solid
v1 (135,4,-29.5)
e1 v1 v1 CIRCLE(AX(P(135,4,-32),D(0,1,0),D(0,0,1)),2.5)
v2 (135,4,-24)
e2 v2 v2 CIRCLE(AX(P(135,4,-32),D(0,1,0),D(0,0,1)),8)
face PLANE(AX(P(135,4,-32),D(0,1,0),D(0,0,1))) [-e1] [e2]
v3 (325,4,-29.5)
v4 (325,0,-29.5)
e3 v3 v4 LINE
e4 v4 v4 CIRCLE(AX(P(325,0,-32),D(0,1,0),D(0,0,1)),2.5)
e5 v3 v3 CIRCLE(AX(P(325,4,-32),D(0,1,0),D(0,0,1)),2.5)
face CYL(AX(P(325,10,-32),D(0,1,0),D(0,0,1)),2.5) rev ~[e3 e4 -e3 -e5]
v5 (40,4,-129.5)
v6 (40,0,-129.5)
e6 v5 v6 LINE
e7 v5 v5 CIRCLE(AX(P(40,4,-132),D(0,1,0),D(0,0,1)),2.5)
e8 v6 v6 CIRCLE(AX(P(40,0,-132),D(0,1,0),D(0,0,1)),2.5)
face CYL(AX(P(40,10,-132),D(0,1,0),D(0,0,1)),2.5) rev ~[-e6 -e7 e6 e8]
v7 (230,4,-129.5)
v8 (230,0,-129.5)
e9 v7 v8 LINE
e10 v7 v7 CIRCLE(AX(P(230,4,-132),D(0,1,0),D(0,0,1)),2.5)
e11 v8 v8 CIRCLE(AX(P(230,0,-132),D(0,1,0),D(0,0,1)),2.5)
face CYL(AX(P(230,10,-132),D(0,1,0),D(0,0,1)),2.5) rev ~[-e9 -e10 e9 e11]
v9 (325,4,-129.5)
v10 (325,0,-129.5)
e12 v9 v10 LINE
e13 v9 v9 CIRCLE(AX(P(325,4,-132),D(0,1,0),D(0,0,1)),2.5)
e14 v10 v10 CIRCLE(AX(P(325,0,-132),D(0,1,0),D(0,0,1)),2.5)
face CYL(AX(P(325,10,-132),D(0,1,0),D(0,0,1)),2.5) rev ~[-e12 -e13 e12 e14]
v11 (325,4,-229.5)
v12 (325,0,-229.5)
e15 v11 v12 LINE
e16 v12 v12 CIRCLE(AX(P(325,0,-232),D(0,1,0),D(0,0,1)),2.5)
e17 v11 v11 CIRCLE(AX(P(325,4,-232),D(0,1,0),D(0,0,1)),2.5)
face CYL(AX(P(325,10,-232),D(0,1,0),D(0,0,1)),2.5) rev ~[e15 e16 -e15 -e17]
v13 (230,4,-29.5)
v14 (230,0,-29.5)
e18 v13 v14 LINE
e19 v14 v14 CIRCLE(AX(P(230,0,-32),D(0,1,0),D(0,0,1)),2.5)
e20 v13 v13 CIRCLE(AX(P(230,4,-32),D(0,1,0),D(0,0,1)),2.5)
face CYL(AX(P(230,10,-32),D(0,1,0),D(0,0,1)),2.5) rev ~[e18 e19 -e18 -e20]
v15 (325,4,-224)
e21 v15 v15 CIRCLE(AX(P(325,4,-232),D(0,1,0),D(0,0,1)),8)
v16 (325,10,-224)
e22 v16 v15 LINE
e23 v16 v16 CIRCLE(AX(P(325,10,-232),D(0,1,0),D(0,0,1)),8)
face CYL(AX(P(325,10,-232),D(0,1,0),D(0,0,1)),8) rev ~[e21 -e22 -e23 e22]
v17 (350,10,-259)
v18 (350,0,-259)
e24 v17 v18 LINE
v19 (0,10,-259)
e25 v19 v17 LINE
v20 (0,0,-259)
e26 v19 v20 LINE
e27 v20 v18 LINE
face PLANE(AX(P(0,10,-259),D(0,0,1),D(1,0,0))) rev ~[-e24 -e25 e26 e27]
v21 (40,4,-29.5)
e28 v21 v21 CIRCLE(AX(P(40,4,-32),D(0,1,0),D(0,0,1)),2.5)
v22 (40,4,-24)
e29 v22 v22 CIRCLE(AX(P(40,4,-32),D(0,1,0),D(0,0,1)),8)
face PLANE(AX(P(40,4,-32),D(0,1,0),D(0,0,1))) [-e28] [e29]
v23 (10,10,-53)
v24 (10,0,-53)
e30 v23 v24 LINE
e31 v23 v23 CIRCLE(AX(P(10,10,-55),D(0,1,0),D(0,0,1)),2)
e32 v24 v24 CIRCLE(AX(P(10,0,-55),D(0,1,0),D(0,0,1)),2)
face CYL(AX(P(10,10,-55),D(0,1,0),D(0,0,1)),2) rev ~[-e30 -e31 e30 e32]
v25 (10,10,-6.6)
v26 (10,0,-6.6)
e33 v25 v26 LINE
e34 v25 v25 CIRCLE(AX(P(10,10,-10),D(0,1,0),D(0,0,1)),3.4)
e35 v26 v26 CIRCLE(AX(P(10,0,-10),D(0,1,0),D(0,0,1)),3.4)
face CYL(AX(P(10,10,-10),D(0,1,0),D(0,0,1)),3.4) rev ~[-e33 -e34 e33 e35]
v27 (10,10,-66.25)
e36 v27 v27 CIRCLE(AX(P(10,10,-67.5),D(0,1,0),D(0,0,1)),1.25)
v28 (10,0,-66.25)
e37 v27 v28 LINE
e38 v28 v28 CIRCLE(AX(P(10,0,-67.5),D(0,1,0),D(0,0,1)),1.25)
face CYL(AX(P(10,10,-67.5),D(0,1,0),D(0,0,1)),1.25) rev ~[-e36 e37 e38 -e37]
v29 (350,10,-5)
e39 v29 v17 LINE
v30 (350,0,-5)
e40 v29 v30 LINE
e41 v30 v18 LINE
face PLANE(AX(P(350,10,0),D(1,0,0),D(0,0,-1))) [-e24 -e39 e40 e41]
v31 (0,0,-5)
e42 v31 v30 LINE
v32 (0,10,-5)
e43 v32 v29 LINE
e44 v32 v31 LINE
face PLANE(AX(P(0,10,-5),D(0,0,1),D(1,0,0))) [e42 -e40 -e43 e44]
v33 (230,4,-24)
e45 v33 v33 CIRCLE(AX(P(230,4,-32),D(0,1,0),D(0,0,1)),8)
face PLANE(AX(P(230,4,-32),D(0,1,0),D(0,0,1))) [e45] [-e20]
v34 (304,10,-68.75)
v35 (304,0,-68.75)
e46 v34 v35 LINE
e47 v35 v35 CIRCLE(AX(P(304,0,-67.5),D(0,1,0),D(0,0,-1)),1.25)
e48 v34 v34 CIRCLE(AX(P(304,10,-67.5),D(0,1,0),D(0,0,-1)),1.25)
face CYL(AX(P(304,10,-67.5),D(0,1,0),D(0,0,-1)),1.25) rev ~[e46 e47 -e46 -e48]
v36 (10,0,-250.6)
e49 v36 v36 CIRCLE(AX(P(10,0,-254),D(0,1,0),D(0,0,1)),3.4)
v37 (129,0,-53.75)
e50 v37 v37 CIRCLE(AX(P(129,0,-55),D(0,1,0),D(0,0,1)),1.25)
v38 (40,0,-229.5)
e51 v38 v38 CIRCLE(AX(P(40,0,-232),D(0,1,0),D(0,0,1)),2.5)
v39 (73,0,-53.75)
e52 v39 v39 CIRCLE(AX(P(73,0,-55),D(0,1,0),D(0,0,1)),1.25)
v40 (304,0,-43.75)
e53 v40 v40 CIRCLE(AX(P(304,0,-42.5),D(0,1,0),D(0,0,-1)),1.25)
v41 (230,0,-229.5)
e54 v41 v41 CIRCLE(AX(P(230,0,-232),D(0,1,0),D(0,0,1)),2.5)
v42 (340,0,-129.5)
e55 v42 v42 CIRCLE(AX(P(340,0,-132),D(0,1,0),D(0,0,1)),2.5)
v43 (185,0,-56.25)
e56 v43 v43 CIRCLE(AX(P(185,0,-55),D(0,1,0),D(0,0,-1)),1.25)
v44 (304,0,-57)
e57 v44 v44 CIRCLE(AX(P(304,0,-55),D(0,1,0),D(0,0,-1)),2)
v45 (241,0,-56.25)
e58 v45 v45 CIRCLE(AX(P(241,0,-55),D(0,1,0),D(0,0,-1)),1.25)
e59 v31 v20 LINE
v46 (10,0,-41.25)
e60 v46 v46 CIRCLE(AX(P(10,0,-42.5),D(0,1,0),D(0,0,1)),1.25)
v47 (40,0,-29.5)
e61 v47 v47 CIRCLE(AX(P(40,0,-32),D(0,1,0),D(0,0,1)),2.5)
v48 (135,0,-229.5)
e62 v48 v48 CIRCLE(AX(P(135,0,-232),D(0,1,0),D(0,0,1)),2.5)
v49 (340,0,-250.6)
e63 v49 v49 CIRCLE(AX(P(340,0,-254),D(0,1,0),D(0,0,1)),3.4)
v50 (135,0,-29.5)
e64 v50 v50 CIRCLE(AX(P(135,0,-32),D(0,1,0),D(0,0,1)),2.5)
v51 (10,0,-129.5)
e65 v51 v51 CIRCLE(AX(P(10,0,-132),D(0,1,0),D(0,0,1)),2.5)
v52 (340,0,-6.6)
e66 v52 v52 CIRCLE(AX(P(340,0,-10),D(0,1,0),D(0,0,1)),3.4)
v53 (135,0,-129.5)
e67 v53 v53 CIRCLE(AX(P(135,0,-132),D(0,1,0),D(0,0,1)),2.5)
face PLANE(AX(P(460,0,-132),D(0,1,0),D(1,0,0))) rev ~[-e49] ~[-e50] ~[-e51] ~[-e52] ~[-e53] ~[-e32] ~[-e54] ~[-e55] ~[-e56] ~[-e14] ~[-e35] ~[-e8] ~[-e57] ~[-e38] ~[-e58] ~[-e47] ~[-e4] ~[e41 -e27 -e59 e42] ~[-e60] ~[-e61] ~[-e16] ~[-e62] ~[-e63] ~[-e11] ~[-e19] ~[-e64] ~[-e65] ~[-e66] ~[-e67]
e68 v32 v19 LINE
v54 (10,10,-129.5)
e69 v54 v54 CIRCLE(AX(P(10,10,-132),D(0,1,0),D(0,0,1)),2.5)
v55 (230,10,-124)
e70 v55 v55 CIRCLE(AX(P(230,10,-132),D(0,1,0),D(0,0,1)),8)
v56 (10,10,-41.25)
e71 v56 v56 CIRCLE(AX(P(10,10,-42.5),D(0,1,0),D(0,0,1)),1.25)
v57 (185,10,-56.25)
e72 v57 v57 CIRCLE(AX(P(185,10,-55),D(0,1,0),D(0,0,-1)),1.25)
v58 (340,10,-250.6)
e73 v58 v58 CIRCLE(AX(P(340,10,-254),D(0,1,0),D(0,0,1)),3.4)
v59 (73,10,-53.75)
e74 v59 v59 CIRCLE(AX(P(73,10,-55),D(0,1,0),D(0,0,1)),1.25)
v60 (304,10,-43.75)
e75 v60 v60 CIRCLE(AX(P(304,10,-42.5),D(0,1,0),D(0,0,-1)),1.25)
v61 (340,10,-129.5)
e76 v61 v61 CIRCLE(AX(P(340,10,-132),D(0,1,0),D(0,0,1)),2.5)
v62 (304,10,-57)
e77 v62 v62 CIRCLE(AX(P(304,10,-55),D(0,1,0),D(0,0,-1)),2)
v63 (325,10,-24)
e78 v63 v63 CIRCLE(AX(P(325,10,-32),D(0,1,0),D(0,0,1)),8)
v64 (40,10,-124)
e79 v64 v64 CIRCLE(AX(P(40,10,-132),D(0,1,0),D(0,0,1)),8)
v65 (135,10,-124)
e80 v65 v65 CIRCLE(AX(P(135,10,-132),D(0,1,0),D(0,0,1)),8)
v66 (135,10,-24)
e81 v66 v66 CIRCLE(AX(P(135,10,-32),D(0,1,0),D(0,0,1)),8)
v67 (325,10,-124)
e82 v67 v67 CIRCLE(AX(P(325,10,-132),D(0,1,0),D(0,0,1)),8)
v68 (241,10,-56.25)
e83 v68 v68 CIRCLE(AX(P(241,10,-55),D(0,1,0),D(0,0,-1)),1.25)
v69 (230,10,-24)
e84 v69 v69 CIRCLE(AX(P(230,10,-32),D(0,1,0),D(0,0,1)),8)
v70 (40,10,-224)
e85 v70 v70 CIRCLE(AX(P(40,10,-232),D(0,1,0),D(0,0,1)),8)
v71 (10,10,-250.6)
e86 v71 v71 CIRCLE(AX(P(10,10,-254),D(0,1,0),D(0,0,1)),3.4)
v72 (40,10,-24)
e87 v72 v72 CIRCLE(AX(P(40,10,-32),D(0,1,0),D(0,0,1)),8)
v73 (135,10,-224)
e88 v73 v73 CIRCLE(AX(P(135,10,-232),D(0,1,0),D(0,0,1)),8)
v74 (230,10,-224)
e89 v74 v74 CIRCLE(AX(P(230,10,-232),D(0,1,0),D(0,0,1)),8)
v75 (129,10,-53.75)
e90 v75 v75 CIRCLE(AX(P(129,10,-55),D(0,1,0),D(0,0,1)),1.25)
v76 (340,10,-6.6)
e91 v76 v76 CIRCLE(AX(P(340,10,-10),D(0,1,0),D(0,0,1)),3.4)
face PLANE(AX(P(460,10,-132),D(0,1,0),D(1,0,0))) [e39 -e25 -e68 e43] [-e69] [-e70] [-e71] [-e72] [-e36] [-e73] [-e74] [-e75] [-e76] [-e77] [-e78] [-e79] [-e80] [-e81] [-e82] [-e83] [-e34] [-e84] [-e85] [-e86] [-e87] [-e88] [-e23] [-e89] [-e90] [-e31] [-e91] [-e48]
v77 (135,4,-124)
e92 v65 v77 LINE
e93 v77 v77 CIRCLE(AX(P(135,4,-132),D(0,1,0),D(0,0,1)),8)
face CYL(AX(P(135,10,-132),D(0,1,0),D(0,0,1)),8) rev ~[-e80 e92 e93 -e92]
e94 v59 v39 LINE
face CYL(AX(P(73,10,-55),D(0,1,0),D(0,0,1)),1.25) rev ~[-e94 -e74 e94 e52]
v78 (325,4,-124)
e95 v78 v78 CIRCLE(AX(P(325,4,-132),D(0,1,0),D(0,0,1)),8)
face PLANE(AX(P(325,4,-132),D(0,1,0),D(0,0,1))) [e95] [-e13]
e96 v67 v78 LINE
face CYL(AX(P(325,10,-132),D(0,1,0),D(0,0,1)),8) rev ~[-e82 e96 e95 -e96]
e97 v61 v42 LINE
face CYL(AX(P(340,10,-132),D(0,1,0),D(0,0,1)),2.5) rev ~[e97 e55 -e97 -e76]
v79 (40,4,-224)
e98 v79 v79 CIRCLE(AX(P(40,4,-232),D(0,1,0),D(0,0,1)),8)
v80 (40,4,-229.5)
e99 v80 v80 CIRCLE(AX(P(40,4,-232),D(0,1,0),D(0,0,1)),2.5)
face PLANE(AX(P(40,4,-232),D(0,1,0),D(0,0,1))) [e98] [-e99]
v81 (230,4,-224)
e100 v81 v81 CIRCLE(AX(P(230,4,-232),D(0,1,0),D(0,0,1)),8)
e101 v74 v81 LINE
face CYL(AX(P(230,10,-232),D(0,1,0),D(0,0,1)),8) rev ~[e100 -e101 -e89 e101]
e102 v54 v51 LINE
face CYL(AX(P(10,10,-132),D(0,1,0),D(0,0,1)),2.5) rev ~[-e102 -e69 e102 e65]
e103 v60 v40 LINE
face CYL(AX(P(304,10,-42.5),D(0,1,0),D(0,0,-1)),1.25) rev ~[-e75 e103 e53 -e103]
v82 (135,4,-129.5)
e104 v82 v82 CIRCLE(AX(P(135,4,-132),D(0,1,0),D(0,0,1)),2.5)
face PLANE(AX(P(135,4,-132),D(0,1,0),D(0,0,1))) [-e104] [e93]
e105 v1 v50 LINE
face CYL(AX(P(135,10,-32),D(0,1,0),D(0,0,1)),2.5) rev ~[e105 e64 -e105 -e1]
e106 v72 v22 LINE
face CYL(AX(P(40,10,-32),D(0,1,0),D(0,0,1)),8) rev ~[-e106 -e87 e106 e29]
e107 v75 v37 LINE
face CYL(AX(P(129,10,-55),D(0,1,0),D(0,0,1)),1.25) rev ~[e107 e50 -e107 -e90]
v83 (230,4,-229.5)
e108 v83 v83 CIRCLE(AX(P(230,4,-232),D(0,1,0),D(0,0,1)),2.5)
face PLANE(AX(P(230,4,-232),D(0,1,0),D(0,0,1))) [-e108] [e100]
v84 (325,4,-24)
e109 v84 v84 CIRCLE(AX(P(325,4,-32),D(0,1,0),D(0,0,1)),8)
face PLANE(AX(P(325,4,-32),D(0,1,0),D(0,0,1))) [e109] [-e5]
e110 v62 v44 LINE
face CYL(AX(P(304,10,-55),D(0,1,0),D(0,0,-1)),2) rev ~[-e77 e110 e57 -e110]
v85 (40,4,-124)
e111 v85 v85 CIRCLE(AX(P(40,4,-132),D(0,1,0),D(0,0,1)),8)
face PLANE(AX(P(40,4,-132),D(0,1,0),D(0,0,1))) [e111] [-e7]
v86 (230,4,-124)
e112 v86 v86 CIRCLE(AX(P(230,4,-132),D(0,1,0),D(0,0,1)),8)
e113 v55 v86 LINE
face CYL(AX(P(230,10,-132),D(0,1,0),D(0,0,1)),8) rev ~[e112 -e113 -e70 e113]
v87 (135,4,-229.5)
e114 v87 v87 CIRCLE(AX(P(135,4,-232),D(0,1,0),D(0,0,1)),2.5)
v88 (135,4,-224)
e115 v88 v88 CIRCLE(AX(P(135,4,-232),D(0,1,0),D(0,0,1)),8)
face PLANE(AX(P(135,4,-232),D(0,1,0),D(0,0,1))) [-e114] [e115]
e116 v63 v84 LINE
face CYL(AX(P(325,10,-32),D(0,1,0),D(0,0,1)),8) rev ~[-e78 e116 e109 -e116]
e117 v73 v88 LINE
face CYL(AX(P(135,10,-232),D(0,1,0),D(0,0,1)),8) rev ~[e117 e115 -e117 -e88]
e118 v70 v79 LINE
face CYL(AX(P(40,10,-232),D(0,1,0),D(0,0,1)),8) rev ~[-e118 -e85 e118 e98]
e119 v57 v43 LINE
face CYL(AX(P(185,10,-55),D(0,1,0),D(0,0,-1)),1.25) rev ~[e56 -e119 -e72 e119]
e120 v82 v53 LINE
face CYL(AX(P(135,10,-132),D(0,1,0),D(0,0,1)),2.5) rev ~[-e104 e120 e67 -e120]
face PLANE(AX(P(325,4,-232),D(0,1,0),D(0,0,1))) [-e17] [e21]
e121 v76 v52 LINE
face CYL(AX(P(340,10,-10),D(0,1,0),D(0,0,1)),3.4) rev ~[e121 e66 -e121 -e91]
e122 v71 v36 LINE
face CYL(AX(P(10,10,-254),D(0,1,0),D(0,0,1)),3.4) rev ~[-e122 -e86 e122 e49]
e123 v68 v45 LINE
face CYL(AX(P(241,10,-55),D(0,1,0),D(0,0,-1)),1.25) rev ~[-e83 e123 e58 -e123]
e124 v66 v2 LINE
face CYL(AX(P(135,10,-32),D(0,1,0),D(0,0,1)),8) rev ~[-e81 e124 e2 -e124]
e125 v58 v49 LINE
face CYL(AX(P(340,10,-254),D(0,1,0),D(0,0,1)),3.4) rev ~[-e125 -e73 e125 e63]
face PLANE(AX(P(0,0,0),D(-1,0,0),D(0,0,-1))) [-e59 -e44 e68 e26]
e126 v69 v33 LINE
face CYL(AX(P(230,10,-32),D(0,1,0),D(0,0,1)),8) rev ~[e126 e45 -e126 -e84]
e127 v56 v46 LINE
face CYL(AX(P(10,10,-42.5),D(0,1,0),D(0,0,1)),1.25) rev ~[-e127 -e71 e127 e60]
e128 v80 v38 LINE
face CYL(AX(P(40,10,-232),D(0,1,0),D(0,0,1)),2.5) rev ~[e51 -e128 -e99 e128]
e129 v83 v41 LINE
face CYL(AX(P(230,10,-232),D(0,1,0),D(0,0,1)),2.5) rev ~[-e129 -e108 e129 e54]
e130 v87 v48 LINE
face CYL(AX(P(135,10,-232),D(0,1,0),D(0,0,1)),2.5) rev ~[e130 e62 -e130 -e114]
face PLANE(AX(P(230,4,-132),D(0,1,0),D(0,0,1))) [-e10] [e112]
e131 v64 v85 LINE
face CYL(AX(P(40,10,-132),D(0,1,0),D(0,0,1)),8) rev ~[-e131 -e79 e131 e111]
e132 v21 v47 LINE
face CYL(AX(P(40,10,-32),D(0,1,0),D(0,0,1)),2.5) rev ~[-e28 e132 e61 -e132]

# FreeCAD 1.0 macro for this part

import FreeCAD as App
import Part
import Sketcher

V = App.Vector


def add_polygon(sketch, points):
    """Adds a closed chain of lines whose ends are joined by coincident constraints."""
    first, n = sketch.GeometryCount, len(points)
    for a, b in zip(points, points[1:] + points[:1]):
        sketch.addGeometry(Part.LineSegment(App.Vector(*a, 0), App.Vector(*b, 0)), False)
    for i in range(n):
        sketch.addConstraint(Sketcher.Constraint("Coincident", first + i, 2, first + (i + 1) % n, 1))

doc = App.newDocument("Part")
body = doc.addObject("PartDesign::Body", "Body")

# Sketch on XZ plane
sketch1 = body.newObject("Sketcher::SketchObject", "Sketch")
sketch1.AttachmentSupport = (doc.getObject("XZ_Plane"), [""])
sketch1.MapMode = "FlatFace"
add_polygon(sketch1, [(0, -264), (0, 0), (920, 0), (920, -264)])  # lines 0-3
sketch1.addConstraint(Sketcher.Constraint("Vertical", 0))
sketch1.addConstraint(Sketcher.Constraint("Horizontal", 1))
sketch1.addConstraint(Sketcher.Constraint("Vertical", 2))
sketch1.addConstraint(Sketcher.Constraint("Horizontal", 3))
sketch1.addConstraint(Sketcher.Constraint("Coincident", 0, 2, -1, 1))
sketch1.addConstraint(Sketcher.Constraint("DistanceX", 1, 1, 1, 2, 920.0))
sketch1.addConstraint(Sketcher.Constraint("DistanceY", 0, 1, 0, 2, 264.0))
pad1 = body.newObject("PartDesign::Pad", "Pad")
pad1.Profile = sketch1
pad1.Length = 10
pad1.Reversed = True

# Sketch on XZ plane
sketch2 = body.newObject("Sketcher::SketchObject", "Sketch001")
sketch2.AttachmentSupport = (doc.getObject("XZ_Plane"), [""])
sketch2.MapMode = "FlatFace"
sketch2.AttachmentOffset = App.Placement(V(0, 0, -10), App.Rotation())
sketch2.addGeometry(Part.Circle(V(40, -32, 0), V(0, 0, 1), 2.5), False)
sketch2.addGeometry(Part.Circle(V(135, -32, 0), V(0, 0, 1), 2.5), False)
sketch2.addGeometry(Part.Circle(V(230, -32, 0), V(0, 0, 1), 2.5), False)
sketch2.addGeometry(Part.Circle(V(325, -32, 0), V(0, 0, 1), 2.5), False)
sketch2.addGeometry(Part.Circle(V(420, -32, 0), V(0, 0, 1), 2.5), False)
sketch2.addGeometry(Part.Circle(V(515, -32, 0), V(0, 0, 1), 2.5), False)
sketch2.addGeometry(Part.Circle(V(610, -32, 0), V(0, 0, 1), 2.5), False)
sketch2.addGeometry(Part.Circle(V(705, -32, 0), V(0, 0, 1), 2.5), False)
sketch2.addGeometry(Part.Circle(V(800, -32, 0), V(0, 0, 1), 2.5), False)
sketch2.addGeometry(Part.Circle(V(895, -32, 0), V(0, 0, 1), 2.5), False)
sketch2.addGeometry(Part.Circle(V(135, -132, 0), V(0, 0, 1), 2.5), False)
sketch2.addGeometry(Part.Circle(V(230, -132, 0), V(0, 0, 1), 2.5), False)
sketch2.addGeometry(Part.Circle(V(325, -132, 0), V(0, 0, 1), 2.5), False)
sketch2.addGeometry(Part.Circle(V(420, -132, 0), V(0, 0, 1), 2.5), False)
sketch2.addGeometry(Part.Circle(V(515, -132, 0), V(0, 0, 1), 2.5), False)
sketch2.addGeometry(Part.Circle(V(610, -132, 0), V(0, 0, 1), 2.5), False)
sketch2.addGeometry(Part.Circle(V(705, -132, 0), V(0, 0, 1), 2.5), False)
sketch2.addGeometry(Part.Circle(V(800, -132, 0), V(0, 0, 1), 2.5), False)
sketch2.addGeometry(Part.Circle(V(895, -132, 0), V(0, 0, 1), 2.5), False)
sketch2.addGeometry(Part.Circle(V(135, -232, 0), V(0, 0, 1), 2.5), False)
sketch2.addGeometry(Part.Circle(V(230, -232, 0), V(0, 0, 1), 2.5), False)
sketch2.addGeometry(Part.Circle(V(325, -232, 0), V(0, 0, 1), 2.5), False)
sketch2.addGeometry(Part.Circle(V(420, -232, 0), V(0, 0, 1), 2.5), False)
sketch2.addGeometry(Part.Circle(V(515, -232, 0), V(0, 0, 1), 2.5), False)
sketch2.addGeometry(Part.Circle(V(610, -232, 0), V(0, 0, 1), 2.5), False)
sketch2.addGeometry(Part.Circle(V(705, -232, 0), V(0, 0, 1), 2.5), False)
sketch2.addGeometry(Part.Circle(V(800, -232, 0), V(0, 0, 1), 2.5), False)
sketch2.addGeometry(Part.Circle(V(895, -232, 0), V(0, 0, 1), 2.5), False)
sketch2.addGeometry(Part.Circle(V(40, -132, 0), V(0, 0, 1), 2.5), False)
sketch2.addGeometry(Part.Circle(V(40, -232, 0), V(0, 0, 1), 2.5), False)
sketch2.addConstraint(Sketcher.Constraint("Equal", 0, 1))
sketch2.addConstraint(Sketcher.Constraint("Equal", 1, 2))
sketch2.addConstraint(Sketcher.Constraint("Equal", 2, 3))
sketch2.addConstraint(Sketcher.Constraint("Equal", 3, 4))
sketch2.addConstraint(Sketcher.Constraint("Equal", 4, 5))
sketch2.addConstraint(Sketcher.Constraint("Equal", 5, 6))
sketch2.addConstraint(Sketcher.Constraint("Equal", 6, 7))
sketch2.addConstraint(Sketcher.Constraint("Equal", 7, 8))
sketch2.addConstraint(Sketcher.Constraint("Equal", 8, 9))
sketch2.addConstraint(Sketcher.Constraint("Equal", 9, 10))
sketch2.addConstraint(Sketcher.Constraint("Equal", 10, 11))
sketch2.addConstraint(Sketcher.Constraint("Equal", 11, 12))
sketch2.addConstraint(Sketcher.Constraint("Equal", 12, 13))
sketch2.addConstraint(Sketcher.Constraint("Equal", 13, 14))
sketch2.addConstraint(Sketcher.Constraint("Equal", 14, 15))
sketch2.addConstraint(Sketcher.Constraint("Equal", 15, 16))
sketch2.addConstraint(Sketcher.Constraint("Equal", 16, 17))
sketch2.addConstraint(Sketcher.Constraint("Equal", 17, 18))
sketch2.addConstraint(Sketcher.Constraint("Equal", 18, 19))
sketch2.addConstraint(Sketcher.Constraint("Equal", 19, 20))
sketch2.addConstraint(Sketcher.Constraint("Equal", 20, 21))
sketch2.addConstraint(Sketcher.Constraint("Equal", 21, 22))
sketch2.addConstraint(Sketcher.Constraint("Equal", 22, 23))
sketch2.addConstraint(Sketcher.Constraint("Equal", 23, 24))
sketch2.addConstraint(Sketcher.Constraint("Equal", 24, 25))
sketch2.addConstraint(Sketcher.Constraint("Equal", 25, 26))
sketch2.addConstraint(Sketcher.Constraint("Equal", 26, 27))
sketch2.addConstraint(Sketcher.Constraint("Equal", 27, 28))
sketch2.addConstraint(Sketcher.Constraint("Equal", 28, 29))
sketch2.addConstraint(Sketcher.Constraint("Horizontal", 0, 3, 1, 3))
sketch2.addConstraint(Sketcher.Constraint("Horizontal", 1, 3, 2, 3))
sketch2.addConstraint(Sketcher.Constraint("Horizontal", 2, 3, 3, 3))
sketch2.addConstraint(Sketcher.Constraint("Horizontal", 3, 3, 4, 3))
sketch2.addConstraint(Sketcher.Constraint("Horizontal", 4, 3, 5, 3))
sketch2.addConstraint(Sketcher.Constraint("Horizontal", 5, 3, 6, 3))
sketch2.addConstraint(Sketcher.Constraint("Horizontal", 6, 3, 7, 3))
sketch2.addConstraint(Sketcher.Constraint("Horizontal", 7, 3, 8, 3))
sketch2.addConstraint(Sketcher.Constraint("Horizontal", 8, 3, 9, 3))
sketch2.addConstraint(Sketcher.Constraint("Horizontal", 10, 3, 11, 3))
sketch2.addConstraint(Sketcher.Constraint("Horizontal", 11, 3, 12, 3))
sketch2.addConstraint(Sketcher.Constraint("Horizontal", 12, 3, 13, 3))
sketch2.addConstraint(Sketcher.Constraint("Horizontal", 13, 3, 14, 3))
sketch2.addConstraint(Sketcher.Constraint("Horizontal", 14, 3, 15, 3))
sketch2.addConstraint(Sketcher.Constraint("Horizontal", 15, 3, 16, 3))
sketch2.addConstraint(Sketcher.Constraint("Horizontal", 16, 3, 17, 3))
sketch2.addConstraint(Sketcher.Constraint("Horizontal", 17, 3, 18, 3))
sketch2.addConstraint(Sketcher.Constraint("Horizontal", 19, 3, 20, 3))
sketch2.addConstraint(Sketcher.Constraint("Horizontal", 20, 3, 21, 3))
sketch2.addConstraint(Sketcher.Constraint("Horizontal", 21, 3, 22, 3))
sketch2.addConstraint(Sketcher.Constraint("Horizontal", 22, 3, 23, 3))
sketch2.addConstraint(Sketcher.Constraint("Horizontal", 23, 3, 24, 3))
sketch2.addConstraint(Sketcher.Constraint("Horizontal", 24, 3, 25, 3))
sketch2.addConstraint(Sketcher.Constraint("Horizontal", 25, 3, 26, 3))
sketch2.addConstraint(Sketcher.Constraint("Horizontal", 26, 3, 27, 3))
sketch2.addConstraint(Sketcher.Constraint("Horizontal", 18, 3, 28, 3))
sketch2.addConstraint(Sketcher.Constraint("Horizontal", 27, 3, 29, 3))
sketch2.addConstraint(Sketcher.Constraint("Vertical", 1, 3, 10, 3))
sketch2.addConstraint(Sketcher.Constraint("Vertical", 2, 3, 11, 3))
sketch2.addConstraint(Sketcher.Constraint("Vertical", 3, 3, 12, 3))
sketch2.addConstraint(Sketcher.Constraint("Vertical", 4, 3, 13, 3))
sketch2.addConstraint(Sketcher.Constraint("Vertical", 5, 3, 14, 3))
sketch2.addConstraint(Sketcher.Constraint("Vertical", 6, 3, 15, 3))
sketch2.addConstraint(Sketcher.Constraint("Vertical", 7, 3, 16, 3))
sketch2.addConstraint(Sketcher.Constraint("Vertical", 8, 3, 17, 3))
sketch2.addConstraint(Sketcher.Constraint("Vertical", 9, 3, 18, 3))
sketch2.addConstraint(Sketcher.Constraint("Vertical", 10, 3, 19, 3))
sketch2.addConstraint(Sketcher.Constraint("Vertical", 11, 3, 20, 3))
sketch2.addConstraint(Sketcher.Constraint("Vertical", 12, 3, 21, 3))
sketch2.addConstraint(Sketcher.Constraint("Vertical", 13, 3, 22, 3))
sketch2.addConstraint(Sketcher.Constraint("Vertical", 14, 3, 23, 3))
sketch2.addConstraint(Sketcher.Constraint("Vertical", 15, 3, 24, 3))
sketch2.addConstraint(Sketcher.Constraint("Vertical", 16, 3, 25, 3))
sketch2.addConstraint(Sketcher.Constraint("Vertical", 17, 3, 26, 3))
sketch2.addConstraint(Sketcher.Constraint("Vertical", 18, 3, 27, 3))
sketch2.addConstraint(Sketcher.Constraint("Vertical", 0, 3, 28, 3))
sketch2.addConstraint(Sketcher.Constraint("Vertical", 28, 3, 29, 3))
sketch2.addConstraint(Sketcher.Constraint("Diameter", 0, 5.0))
sketch2.addConstraint(Sketcher.Constraint("DistanceX", -1, 1, 0, 3, 40.0))
sketch2.addConstraint(Sketcher.Constraint("DistanceY", 0, 3, -1, 1, 32.0))
sketch2.addConstraint(Sketcher.Constraint("DistanceX", -1, 1, 1, 3, 135.0))
sketch2.addConstraint(Sketcher.Constraint("DistanceX", -1, 1, 2, 3, 230.0))
sketch2.addConstraint(Sketcher.Constraint("DistanceX", -1, 1, 3, 3, 325.0))
sketch2.addConstraint(Sketcher.Constraint("DistanceX", -1, 1, 4, 3, 420.0))
sketch2.addConstraint(Sketcher.Constraint("DistanceX", -1, 1, 5, 3, 515.0))
sketch2.addConstraint(Sketcher.Constraint("DistanceX", -1, 1, 6, 3, 610.0))
sketch2.addConstraint(Sketcher.Constraint("DistanceX", -1, 1, 7, 3, 705.0))
sketch2.addConstraint(Sketcher.Constraint("DistanceX", -1, 1, 8, 3, 800.0))
sketch2.addConstraint(Sketcher.Constraint("DistanceX", -1, 1, 9, 3, 895.0))
sketch2.addConstraint(Sketcher.Constraint("DistanceY", 10, 3, -1, 1, 132.0))
sketch2.addConstraint(Sketcher.Constraint("DistanceY", 19, 3, -1, 1, 232.0))
pocket1 = body.newObject("PartDesign::Pocket", "Pocket")
pocket1.Profile = sketch2
pocket1.Length = 18
pocket1.Reversed = True

# Sketch on XZ plane
sketch3 = body.newObject("Sketcher::SketchObject", "Sketch002")
sketch3.AttachmentSupport = (doc.getObject("XZ_Plane"), [""])
sketch3.MapMode = "FlatFace"
sketch3.AttachmentOffset = App.Placement(V(0, 0, -10), App.Rotation())
sketch3.addGeometry(Part.Circle(V(40, -32, 0), V(0, 0, 1), 8), False)
sketch3.addGeometry(Part.Circle(V(135, -32, 0), V(0, 0, 1), 8), False)
sketch3.addGeometry(Part.Circle(V(230, -32, 0), V(0, 0, 1), 8), False)
sketch3.addGeometry(Part.Circle(V(325, -32, 0), V(0, 0, 1), 8), False)
sketch3.addGeometry(Part.Circle(V(420, -32, 0), V(0, 0, 1), 8), False)
sketch3.addGeometry(Part.Circle(V(515, -32, 0), V(0, 0, 1), 8), False)
sketch3.addGeometry(Part.Circle(V(610, -32, 0), V(0, 0, 1), 8), False)
sketch3.addGeometry(Part.Circle(V(705, -32, 0), V(0, 0, 1), 8), False)
sketch3.addGeometry(Part.Circle(V(800, -32, 0), V(0, 0, 1), 8), False)
sketch3.addGeometry(Part.Circle(V(895, -32, 0), V(0, 0, 1), 8), False)
sketch3.addGeometry(Part.Circle(V(135, -132, 0), V(0, 0, 1), 8), False)
sketch3.addGeometry(Part.Circle(V(230, -132, 0), V(0, 0, 1), 8), False)
sketch3.addGeometry(Part.Circle(V(325, -132, 0), V(0, 0, 1), 8), False)
sketch3.addGeometry(Part.Circle(V(420, -132, 0), V(0, 0, 1), 8), False)
sketch3.addGeometry(Part.Circle(V(515, -132, 0), V(0, 0, 1), 8), False)
sketch3.addGeometry(Part.Circle(V(610, -132, 0), V(0, 0, 1), 8), False)
sketch3.addGeometry(Part.Circle(V(705, -132, 0), V(0, 0, 1), 8), False)
sketch3.addGeometry(Part.Circle(V(800, -132, 0), V(0, 0, 1), 8), False)
sketch3.addGeometry(Part.Circle(V(895, -132, 0), V(0, 0, 1), 8), False)
sketch3.addGeometry(Part.Circle(V(135, -232, 0), V(0, 0, 1), 8), False)
sketch3.addGeometry(Part.Circle(V(230, -232, 0), V(0, 0, 1), 8), False)
sketch3.addGeometry(Part.Circle(V(325, -232, 0), V(0, 0, 1), 8), False)
sketch3.addGeometry(Part.Circle(V(420, -232, 0), V(0, 0, 1), 8), False)
sketch3.addGeometry(Part.Circle(V(515, -232, 0), V(0, 0, 1), 8), False)
sketch3.addGeometry(Part.Circle(V(610, -232, 0), V(0, 0, 1), 8), False)
sketch3.addGeometry(Part.Circle(V(705, -232, 0), V(0, 0, 1), 8), False)
sketch3.addGeometry(Part.Circle(V(800, -232, 0), V(0, 0, 1), 8), False)
sketch3.addGeometry(Part.Circle(V(895, -232, 0), V(0, 0, 1), 8), False)
sketch3.addGeometry(Part.Circle(V(40, -132, 0), V(0, 0, 1), 8), False)
sketch3.addGeometry(Part.Circle(V(40, -232, 0), V(0, 0, 1), 8), False)
sketch3.addConstraint(Sketcher.Constraint("Equal", 0, 1))
sketch3.addConstraint(Sketcher.Constraint("Equal", 1, 2))
sketch3.addConstraint(Sketcher.Constraint("Equal", 2, 3))
sketch3.addConstraint(Sketcher.Constraint("Equal", 3, 4))
sketch3.addConstraint(Sketcher.Constraint("Equal", 4, 5))
sketch3.addConstraint(Sketcher.Constraint("Equal", 5, 6))
sketch3.addConstraint(Sketcher.Constraint("Equal", 6, 7))
sketch3.addConstraint(Sketcher.Constraint("Equal", 7, 8))
sketch3.addConstraint(Sketcher.Constraint("Equal", 8, 9))
sketch3.addConstraint(Sketcher.Constraint("Equal", 9, 10))
sketch3.addConstraint(Sketcher.Constraint("Equal", 10, 11))
sketch3.addConstraint(Sketcher.Constraint("Equal", 11, 12))
sketch3.addConstraint(Sketcher.Constraint("Equal", 12, 13))
sketch3.addConstraint(Sketcher.Constraint("Equal", 13, 14))
sketch3.addConstraint(Sketcher.Constraint("Equal", 14, 15))
sketch3.addConstraint(Sketcher.Constraint("Equal", 15, 16))
sketch3.addConstraint(Sketcher.Constraint("Equal", 16, 17))
sketch3.addConstraint(Sketcher.Constraint("Equal", 17, 18))
sketch3.addConstraint(Sketcher.Constraint("Equal", 18, 19))
sketch3.addConstraint(Sketcher.Constraint("Equal", 19, 20))
sketch3.addConstraint(Sketcher.Constraint("Equal", 20, 21))
sketch3.addConstraint(Sketcher.Constraint("Equal", 21, 22))
sketch3.addConstraint(Sketcher.Constraint("Equal", 22, 23))
sketch3.addConstraint(Sketcher.Constraint("Equal", 23, 24))
sketch3.addConstraint(Sketcher.Constraint("Equal", 24, 25))
sketch3.addConstraint(Sketcher.Constraint("Equal", 25, 26))
sketch3.addConstraint(Sketcher.Constraint("Equal", 26, 27))
sketch3.addConstraint(Sketcher.Constraint("Equal", 27, 28))
sketch3.addConstraint(Sketcher.Constraint("Equal", 28, 29))
sketch3.addConstraint(Sketcher.Constraint("Horizontal", 0, 3, 1, 3))
sketch3.addConstraint(Sketcher.Constraint("Horizontal", 1, 3, 2, 3))
sketch3.addConstraint(Sketcher.Constraint("Horizontal", 2, 3, 3, 3))
sketch3.addConstraint(Sketcher.Constraint("Horizontal", 3, 3, 4, 3))
sketch3.addConstraint(Sketcher.Constraint("Horizontal", 4, 3, 5, 3))
sketch3.addConstraint(Sketcher.Constraint("Horizontal", 5, 3, 6, 3))
sketch3.addConstraint(Sketcher.Constraint("Horizontal", 6, 3, 7, 3))
sketch3.addConstraint(Sketcher.Constraint("Horizontal", 7, 3, 8, 3))
sketch3.addConstraint(Sketcher.Constraint("Horizontal", 8, 3, 9, 3))
sketch3.addConstraint(Sketcher.Constraint("Horizontal", 10, 3, 11, 3))
sketch3.addConstraint(Sketcher.Constraint("Horizontal", 11, 3, 12, 3))
sketch3.addConstraint(Sketcher.Constraint("Horizontal", 12, 3, 13, 3))
sketch3.addConstraint(Sketcher.Constraint("Horizontal", 13, 3, 14, 3))
sketch3.addConstraint(Sketcher.Constraint("Horizontal", 14, 3, 15, 3))
sketch3.addConstraint(Sketcher.Constraint("Horizontal", 15, 3, 16, 3))
sketch3.addConstraint(Sketcher.Constraint("Horizontal", 16, 3, 17, 3))
sketch3.addConstraint(Sketcher.Constraint("Horizontal", 17, 3, 18, 3))
sketch3.addConstraint(Sketcher.Constraint("Horizontal", 19, 3, 20, 3))
sketch3.addConstraint(Sketcher.Constraint("Horizontal", 20, 3, 21, 3))
sketch3.addConstraint(Sketcher.Constraint("Horizontal", 21, 3, 22, 3))
sketch3.addConstraint(Sketcher.Constraint("Horizontal", 22, 3, 23, 3))
sketch3.addConstraint(Sketcher.Constraint("Horizontal", 23, 3, 24, 3))
sketch3.addConstraint(Sketcher.Constraint("Horizontal", 24, 3, 25, 3))
sketch3.addConstraint(Sketcher.Constraint("Horizontal", 25, 3, 26, 3))
sketch3.addConstraint(Sketcher.Constraint("Horizontal", 26, 3, 27, 3))
sketch3.addConstraint(Sketcher.Constraint("Horizontal", 18, 3, 28, 3))
sketch3.addConstraint(Sketcher.Constraint("Horizontal", 27, 3, 29, 3))
sketch3.addConstraint(Sketcher.Constraint("Vertical", 1, 3, 10, 3))
sketch3.addConstraint(Sketcher.Constraint("Vertical", 2, 3, 11, 3))
sketch3.addConstraint(Sketcher.Constraint("Vertical", 3, 3, 12, 3))
sketch3.addConstraint(Sketcher.Constraint("Vertical", 4, 3, 13, 3))
sketch3.addConstraint(Sketcher.Constraint("Vertical", 5, 3, 14, 3))
sketch3.addConstraint(Sketcher.Constraint("Vertical", 6, 3, 15, 3))
sketch3.addConstraint(Sketcher.Constraint("Vertical", 7, 3, 16, 3))
sketch3.addConstraint(Sketcher.Constraint("Vertical", 8, 3, 17, 3))
sketch3.addConstraint(Sketcher.Constraint("Vertical", 9, 3, 18, 3))
sketch3.addConstraint(Sketcher.Constraint("Vertical", 10, 3, 19, 3))
sketch3.addConstraint(Sketcher.Constraint("Vertical", 11, 3, 20, 3))
sketch3.addConstraint(Sketcher.Constraint("Vertical", 12, 3, 21, 3))
sketch3.addConstraint(Sketcher.Constraint("Vertical", 13, 3, 22, 3))
sketch3.addConstraint(Sketcher.Constraint("Vertical", 14, 3, 23, 3))
sketch3.addConstraint(Sketcher.Constraint("Vertical", 15, 3, 24, 3))
sketch3.addConstraint(Sketcher.Constraint("Vertical", 16, 3, 25, 3))
sketch3.addConstraint(Sketcher.Constraint("Vertical", 17, 3, 26, 3))
sketch3.addConstraint(Sketcher.Constraint("Vertical", 18, 3, 27, 3))
sketch3.addConstraint(Sketcher.Constraint("Vertical", 0, 3, 28, 3))
sketch3.addConstraint(Sketcher.Constraint("Vertical", 28, 3, 29, 3))
sketch3.addConstraint(Sketcher.Constraint("Diameter", 0, 16.0))
sketch3.addConstraint(Sketcher.Constraint("DistanceX", -1, 1, 0, 3, 40.0))
sketch3.addConstraint(Sketcher.Constraint("DistanceY", 0, 3, -1, 1, 32.0))
sketch3.addConstraint(Sketcher.Constraint("DistanceX", -1, 1, 1, 3, 135.0))
sketch3.addConstraint(Sketcher.Constraint("DistanceX", -1, 1, 2, 3, 230.0))
sketch3.addConstraint(Sketcher.Constraint("DistanceX", -1, 1, 3, 3, 325.0))
sketch3.addConstraint(Sketcher.Constraint("DistanceX", -1, 1, 4, 3, 420.0))
sketch3.addConstraint(Sketcher.Constraint("DistanceX", -1, 1, 5, 3, 515.0))
sketch3.addConstraint(Sketcher.Constraint("DistanceX", -1, 1, 6, 3, 610.0))
sketch3.addConstraint(Sketcher.Constraint("DistanceX", -1, 1, 7, 3, 705.0))
sketch3.addConstraint(Sketcher.Constraint("DistanceX", -1, 1, 8, 3, 800.0))
sketch3.addConstraint(Sketcher.Constraint("DistanceX", -1, 1, 9, 3, 895.0))
sketch3.addConstraint(Sketcher.Constraint("DistanceY", 10, 3, -1, 1, 132.0))
sketch3.addConstraint(Sketcher.Constraint("DistanceY", 19, 3, -1, 1, 232.0))
pocket2 = body.newObject("PartDesign::Pocket", "Pocket001")
pocket2.Profile = sketch3
pocket2.Length = 6
pocket2.Reversed = True

# Sketch on XZ plane
sketch4 = body.newObject("Sketcher::SketchObject", "Sketch003")
sketch4.AttachmentSupport = (doc.getObject("XZ_Plane"), [""])
sketch4.MapMode = "FlatFace"
sketch4.AttachmentOffset = App.Placement(V(0, 0, -10), App.Rotation())
add_polygon(sketch4, [(350, -264), (350, 0), (920, 0), (920, -264)])  # lines 0-3
sketch4.addConstraint(Sketcher.Constraint("Vertical", 0))
sketch4.addConstraint(Sketcher.Constraint("Horizontal", 1))
sketch4.addConstraint(Sketcher.Constraint("Vertical", 2))
sketch4.addConstraint(Sketcher.Constraint("Horizontal", 3))
sketch4.addConstraint(Sketcher.Constraint("PointOnObject", 0, 2, -1))
sketch4.addConstraint(Sketcher.Constraint("DistanceX", 1, 1, 1, 2, 570.0))
sketch4.addConstraint(Sketcher.Constraint("DistanceY", 0, 1, 0, 2, 264.0))
sketch4.addConstraint(Sketcher.Constraint("DistanceX", -1, 1, 0, 2, 350.0))
pocket3 = body.newObject("PartDesign::Pocket", "Pocket002")
pocket3.Profile = sketch4
pocket3.Length = 20
pocket3.Reversed = True

# Sketch on XZ plane
sketch5 = body.newObject("Sketcher::SketchObject", "Sketch004")
sketch5.AttachmentSupport = (doc.getObject("XZ_Plane"), [""])
sketch5.MapMode = "FlatFace"
sketch5.AttachmentOffset = App.Placement(V(0, 0, -10), App.Rotation())
sketch5.addGeometry(Part.Circle(V(10, -254, 0), V(0, 0, 1), 3.4), False)
sketch5.addGeometry(Part.Circle(V(340, -254, 0), V(0, 0, 1), 3.4), False)
sketch5.addGeometry(Part.Circle(V(340, -10, 0), V(0, 0, 1), 3.4), False)
sketch5.addGeometry(Part.Circle(V(10, -10, 0), V(0, 0, 1), 3.4), False)
sketch5.addGeometry(Part.Circle(V(10, -132, 0), V(0, 0, 1), 2.5), False)
sketch5.addGeometry(Part.Circle(V(340, -132, 0), V(0, 0, 1), 2.5), False)
sketch5.addConstraint(Sketcher.Constraint("Equal", 0, 1))
sketch5.addConstraint(Sketcher.Constraint("Equal", 1, 2))
sketch5.addConstraint(Sketcher.Constraint("Equal", 2, 3))
sketch5.addConstraint(Sketcher.Constraint("Equal", 4, 5))
sketch5.addConstraint(Sketcher.Constraint("Horizontal", 0, 3, 1, 3))
sketch5.addConstraint(Sketcher.Constraint("Horizontal", 2, 3, 3, 3))
sketch5.addConstraint(Sketcher.Constraint("Horizontal", 4, 3, 5, 3))
sketch5.addConstraint(Sketcher.Constraint("Vertical", 1, 3, 2, 3))
sketch5.addConstraint(Sketcher.Constraint("Vertical", 0, 3, 3, 3))
sketch5.addConstraint(Sketcher.Constraint("Vertical", 3, 3, 4, 3))
sketch5.addConstraint(Sketcher.Constraint("Vertical", 2, 3, 5, 3))
sketch5.addConstraint(Sketcher.Constraint("Diameter", 4, 5.0))
sketch5.addConstraint(Sketcher.Constraint("Diameter", 0, 6.8))
sketch5.addConstraint(Sketcher.Constraint("DistanceX", -1, 1, 0, 3, 10.0))
sketch5.addConstraint(Sketcher.Constraint("DistanceY", 0, 3, -1, 1, 254.0))
sketch5.addConstraint(Sketcher.Constraint("DistanceX", -1, 1, 1, 3, 340.0))
sketch5.addConstraint(Sketcher.Constraint("DistanceY", 2, 3, -1, 1, 10.0))
sketch5.addConstraint(Sketcher.Constraint("DistanceY", 4, 3, -1, 1, 132.0))
pocket4 = body.newObject("PartDesign::Pocket", "Pocket003")
pocket4.Profile = sketch5
pocket4.Length = 20
pocket4.Reversed = True

# Sketch on XZ plane
sketch6 = body.newObject("Sketcher::SketchObject", "Sketch005")
sketch6.AttachmentSupport = (doc.getObject("XZ_Plane"), [""])
sketch6.MapMode = "FlatFace"
sketch6.AttachmentOffset = App.Placement(V(0, 0, -10), App.Rotation())
add_polygon(sketch6, [(0, -264), (0, -259), (350, -259), (350, -264)])  # lines 0-3
add_polygon(sketch6, [(0, -5), (0, 0), (350, 0), (350, -5)])  # lines 4-7
sketch6.addConstraint(Sketcher.Constraint("Vertical", 0))
sketch6.addConstraint(Sketcher.Constraint("Horizontal", 1))
sketch6.addConstraint(Sketcher.Constraint("Vertical", 2))
sketch6.addConstraint(Sketcher.Constraint("Horizontal", 3))
sketch6.addConstraint(Sketcher.Constraint("Vertical", 4))
sketch6.addConstraint(Sketcher.Constraint("Horizontal", 5))
sketch6.addConstraint(Sketcher.Constraint("Vertical", 6))
sketch6.addConstraint(Sketcher.Constraint("Horizontal", 7))
sketch6.addConstraint(Sketcher.Constraint("Coincident", 4, 2, -1, 1))
sketch6.addConstraint(Sketcher.Constraint("PointOnObject", 0, 2, -2))
sketch6.addConstraint(Sketcher.Constraint("Vertical", 2, 2, 5, 2))
sketch6.addConstraint(Sketcher.Constraint("Equal", 2, 4))
sketch6.addConstraint(Sketcher.Constraint("DistanceX", 1, 1, 1, 2, 350.0))
sketch6.addConstraint(Sketcher.Constraint("DistanceY", 0, 1, 0, 2, 5.0))
sketch6.addConstraint(Sketcher.Constraint("DistanceY", 0, 2, -1, 1, 259.0))
pocket5 = body.newObject("PartDesign::Pocket", "Pocket004")
pocket5.Profile = sketch6
pocket5.Length = 10
pocket5.Reversed = True

# Sketch on XZ plane
sketch7 = body.newObject("Sketcher::SketchObject", "Sketch006")
sketch7.AttachmentSupport = (doc.getObject("XZ_Plane"), [""])
sketch7.MapMode = "FlatFace"
sketch7.AttachmentOffset = App.Placement(V(0, 0, -10), App.Rotation())
sketch7.addGeometry(Part.Circle(V(10, -67.5, 0), V(0, 0, 1), 1.25), False)
sketch7.addGeometry(Part.Circle(V(10, -42.5, 0), V(0, 0, 1), 1.25), False)
sketch7.addGeometry(Part.Circle(V(304, -67.5, 0), V(0, 0, 1), 1.25), False)
sketch7.addGeometry(Part.Circle(V(304, -42.5, 0), V(0, 0, 1), 1.25), False)
sketch7.addGeometry(Part.Circle(V(73, -55, 0), V(0, 0, 1), 1.25), False)
sketch7.addGeometry(Part.Circle(V(129, -55, 0), V(0, 0, 1), 1.25), False)
sketch7.addGeometry(Part.Circle(V(185, -55, 0), V(0, 0, 1), 1.25), False)
sketch7.addGeometry(Part.Circle(V(241, -55, 0), V(0, 0, 1), 1.25), False)
sketch7.addGeometry(Part.Circle(V(10, -55, 0), V(0, 0, 1), 2), False)
sketch7.addGeometry(Part.Circle(V(304, -55, 0), V(0, 0, 1), 2), False)
sketch7.addConstraint(Sketcher.Constraint("Equal", 0, 1))
sketch7.addConstraint(Sketcher.Constraint("Equal", 1, 2))
sketch7.addConstraint(Sketcher.Constraint("Equal", 2, 3))
sketch7.addConstraint(Sketcher.Constraint("Equal", 3, 4))
sketch7.addConstraint(Sketcher.Constraint("Equal", 4, 5))
sketch7.addConstraint(Sketcher.Constraint("Equal", 5, 6))
sketch7.addConstraint(Sketcher.Constraint("Equal", 6, 7))
sketch7.addConstraint(Sketcher.Constraint("Equal", 8, 9))
sketch7.addConstraint(Sketcher.Constraint("Horizontal", 0, 3, 2, 3))
sketch7.addConstraint(Sketcher.Constraint("Horizontal", 1, 3, 3, 3))
sketch7.addConstraint(Sketcher.Constraint("Horizontal", 4, 3, 5, 3))
sketch7.addConstraint(Sketcher.Constraint("Horizontal", 5, 3, 6, 3))
sketch7.addConstraint(Sketcher.Constraint("Horizontal", 6, 3, 7, 3))
sketch7.addConstraint(Sketcher.Constraint("Horizontal", 7, 3, 8, 3))
sketch7.addConstraint(Sketcher.Constraint("Horizontal", 8, 3, 9, 3))
sketch7.addConstraint(Sketcher.Constraint("Vertical", 0, 3, 1, 3))
sketch7.addConstraint(Sketcher.Constraint("Vertical", 2, 3, 3, 3))
sketch7.addConstraint(Sketcher.Constraint("Vertical", 1, 3, 8, 3))
sketch7.addConstraint(Sketcher.Constraint("Vertical", 3, 3, 9, 3))
sketch7.addConstraint(Sketcher.Constraint("Diameter", 8, 4.0))
sketch7.addConstraint(Sketcher.Constraint("Diameter", 0, 2.5))
sketch7.addConstraint(Sketcher.Constraint("DistanceX", -1, 1, 0, 3, 10.0))
sketch7.addConstraint(Sketcher.Constraint("DistanceX", -1, 1, 2, 3, 304.0))
sketch7.addConstraint(Sketcher.Constraint("DistanceX", -1, 1, 4, 3, 73.0))
sketch7.addConstraint(Sketcher.Constraint("DistanceY", 4, 3, -1, 1, 55.0))
sketch7.addConstraint(Sketcher.Constraint("DistanceX", -1, 1, 5, 3, 129.0))
sketch7.addConstraint(Sketcher.Constraint("DistanceX", -1, 1, 6, 3, 185.0))
sketch7.addConstraint(Sketcher.Constraint("DistanceX", -1, 1, 7, 3, 241.0))
sketch7.addConstraint(Sketcher.Constraint("DistanceY", 0, 3, 1, 3, 25.0))
sketch7.addConstraint(Sketcher.Constraint("DistanceY", 0, 3, -1, 1, 67.5))
pocket6 = body.newObject("PartDesign::Pocket", "Pocket005")
pocket6.Profile = sketch7
pocket6.Length = 10
pocket6.Reversed = True

doc.recompute()
